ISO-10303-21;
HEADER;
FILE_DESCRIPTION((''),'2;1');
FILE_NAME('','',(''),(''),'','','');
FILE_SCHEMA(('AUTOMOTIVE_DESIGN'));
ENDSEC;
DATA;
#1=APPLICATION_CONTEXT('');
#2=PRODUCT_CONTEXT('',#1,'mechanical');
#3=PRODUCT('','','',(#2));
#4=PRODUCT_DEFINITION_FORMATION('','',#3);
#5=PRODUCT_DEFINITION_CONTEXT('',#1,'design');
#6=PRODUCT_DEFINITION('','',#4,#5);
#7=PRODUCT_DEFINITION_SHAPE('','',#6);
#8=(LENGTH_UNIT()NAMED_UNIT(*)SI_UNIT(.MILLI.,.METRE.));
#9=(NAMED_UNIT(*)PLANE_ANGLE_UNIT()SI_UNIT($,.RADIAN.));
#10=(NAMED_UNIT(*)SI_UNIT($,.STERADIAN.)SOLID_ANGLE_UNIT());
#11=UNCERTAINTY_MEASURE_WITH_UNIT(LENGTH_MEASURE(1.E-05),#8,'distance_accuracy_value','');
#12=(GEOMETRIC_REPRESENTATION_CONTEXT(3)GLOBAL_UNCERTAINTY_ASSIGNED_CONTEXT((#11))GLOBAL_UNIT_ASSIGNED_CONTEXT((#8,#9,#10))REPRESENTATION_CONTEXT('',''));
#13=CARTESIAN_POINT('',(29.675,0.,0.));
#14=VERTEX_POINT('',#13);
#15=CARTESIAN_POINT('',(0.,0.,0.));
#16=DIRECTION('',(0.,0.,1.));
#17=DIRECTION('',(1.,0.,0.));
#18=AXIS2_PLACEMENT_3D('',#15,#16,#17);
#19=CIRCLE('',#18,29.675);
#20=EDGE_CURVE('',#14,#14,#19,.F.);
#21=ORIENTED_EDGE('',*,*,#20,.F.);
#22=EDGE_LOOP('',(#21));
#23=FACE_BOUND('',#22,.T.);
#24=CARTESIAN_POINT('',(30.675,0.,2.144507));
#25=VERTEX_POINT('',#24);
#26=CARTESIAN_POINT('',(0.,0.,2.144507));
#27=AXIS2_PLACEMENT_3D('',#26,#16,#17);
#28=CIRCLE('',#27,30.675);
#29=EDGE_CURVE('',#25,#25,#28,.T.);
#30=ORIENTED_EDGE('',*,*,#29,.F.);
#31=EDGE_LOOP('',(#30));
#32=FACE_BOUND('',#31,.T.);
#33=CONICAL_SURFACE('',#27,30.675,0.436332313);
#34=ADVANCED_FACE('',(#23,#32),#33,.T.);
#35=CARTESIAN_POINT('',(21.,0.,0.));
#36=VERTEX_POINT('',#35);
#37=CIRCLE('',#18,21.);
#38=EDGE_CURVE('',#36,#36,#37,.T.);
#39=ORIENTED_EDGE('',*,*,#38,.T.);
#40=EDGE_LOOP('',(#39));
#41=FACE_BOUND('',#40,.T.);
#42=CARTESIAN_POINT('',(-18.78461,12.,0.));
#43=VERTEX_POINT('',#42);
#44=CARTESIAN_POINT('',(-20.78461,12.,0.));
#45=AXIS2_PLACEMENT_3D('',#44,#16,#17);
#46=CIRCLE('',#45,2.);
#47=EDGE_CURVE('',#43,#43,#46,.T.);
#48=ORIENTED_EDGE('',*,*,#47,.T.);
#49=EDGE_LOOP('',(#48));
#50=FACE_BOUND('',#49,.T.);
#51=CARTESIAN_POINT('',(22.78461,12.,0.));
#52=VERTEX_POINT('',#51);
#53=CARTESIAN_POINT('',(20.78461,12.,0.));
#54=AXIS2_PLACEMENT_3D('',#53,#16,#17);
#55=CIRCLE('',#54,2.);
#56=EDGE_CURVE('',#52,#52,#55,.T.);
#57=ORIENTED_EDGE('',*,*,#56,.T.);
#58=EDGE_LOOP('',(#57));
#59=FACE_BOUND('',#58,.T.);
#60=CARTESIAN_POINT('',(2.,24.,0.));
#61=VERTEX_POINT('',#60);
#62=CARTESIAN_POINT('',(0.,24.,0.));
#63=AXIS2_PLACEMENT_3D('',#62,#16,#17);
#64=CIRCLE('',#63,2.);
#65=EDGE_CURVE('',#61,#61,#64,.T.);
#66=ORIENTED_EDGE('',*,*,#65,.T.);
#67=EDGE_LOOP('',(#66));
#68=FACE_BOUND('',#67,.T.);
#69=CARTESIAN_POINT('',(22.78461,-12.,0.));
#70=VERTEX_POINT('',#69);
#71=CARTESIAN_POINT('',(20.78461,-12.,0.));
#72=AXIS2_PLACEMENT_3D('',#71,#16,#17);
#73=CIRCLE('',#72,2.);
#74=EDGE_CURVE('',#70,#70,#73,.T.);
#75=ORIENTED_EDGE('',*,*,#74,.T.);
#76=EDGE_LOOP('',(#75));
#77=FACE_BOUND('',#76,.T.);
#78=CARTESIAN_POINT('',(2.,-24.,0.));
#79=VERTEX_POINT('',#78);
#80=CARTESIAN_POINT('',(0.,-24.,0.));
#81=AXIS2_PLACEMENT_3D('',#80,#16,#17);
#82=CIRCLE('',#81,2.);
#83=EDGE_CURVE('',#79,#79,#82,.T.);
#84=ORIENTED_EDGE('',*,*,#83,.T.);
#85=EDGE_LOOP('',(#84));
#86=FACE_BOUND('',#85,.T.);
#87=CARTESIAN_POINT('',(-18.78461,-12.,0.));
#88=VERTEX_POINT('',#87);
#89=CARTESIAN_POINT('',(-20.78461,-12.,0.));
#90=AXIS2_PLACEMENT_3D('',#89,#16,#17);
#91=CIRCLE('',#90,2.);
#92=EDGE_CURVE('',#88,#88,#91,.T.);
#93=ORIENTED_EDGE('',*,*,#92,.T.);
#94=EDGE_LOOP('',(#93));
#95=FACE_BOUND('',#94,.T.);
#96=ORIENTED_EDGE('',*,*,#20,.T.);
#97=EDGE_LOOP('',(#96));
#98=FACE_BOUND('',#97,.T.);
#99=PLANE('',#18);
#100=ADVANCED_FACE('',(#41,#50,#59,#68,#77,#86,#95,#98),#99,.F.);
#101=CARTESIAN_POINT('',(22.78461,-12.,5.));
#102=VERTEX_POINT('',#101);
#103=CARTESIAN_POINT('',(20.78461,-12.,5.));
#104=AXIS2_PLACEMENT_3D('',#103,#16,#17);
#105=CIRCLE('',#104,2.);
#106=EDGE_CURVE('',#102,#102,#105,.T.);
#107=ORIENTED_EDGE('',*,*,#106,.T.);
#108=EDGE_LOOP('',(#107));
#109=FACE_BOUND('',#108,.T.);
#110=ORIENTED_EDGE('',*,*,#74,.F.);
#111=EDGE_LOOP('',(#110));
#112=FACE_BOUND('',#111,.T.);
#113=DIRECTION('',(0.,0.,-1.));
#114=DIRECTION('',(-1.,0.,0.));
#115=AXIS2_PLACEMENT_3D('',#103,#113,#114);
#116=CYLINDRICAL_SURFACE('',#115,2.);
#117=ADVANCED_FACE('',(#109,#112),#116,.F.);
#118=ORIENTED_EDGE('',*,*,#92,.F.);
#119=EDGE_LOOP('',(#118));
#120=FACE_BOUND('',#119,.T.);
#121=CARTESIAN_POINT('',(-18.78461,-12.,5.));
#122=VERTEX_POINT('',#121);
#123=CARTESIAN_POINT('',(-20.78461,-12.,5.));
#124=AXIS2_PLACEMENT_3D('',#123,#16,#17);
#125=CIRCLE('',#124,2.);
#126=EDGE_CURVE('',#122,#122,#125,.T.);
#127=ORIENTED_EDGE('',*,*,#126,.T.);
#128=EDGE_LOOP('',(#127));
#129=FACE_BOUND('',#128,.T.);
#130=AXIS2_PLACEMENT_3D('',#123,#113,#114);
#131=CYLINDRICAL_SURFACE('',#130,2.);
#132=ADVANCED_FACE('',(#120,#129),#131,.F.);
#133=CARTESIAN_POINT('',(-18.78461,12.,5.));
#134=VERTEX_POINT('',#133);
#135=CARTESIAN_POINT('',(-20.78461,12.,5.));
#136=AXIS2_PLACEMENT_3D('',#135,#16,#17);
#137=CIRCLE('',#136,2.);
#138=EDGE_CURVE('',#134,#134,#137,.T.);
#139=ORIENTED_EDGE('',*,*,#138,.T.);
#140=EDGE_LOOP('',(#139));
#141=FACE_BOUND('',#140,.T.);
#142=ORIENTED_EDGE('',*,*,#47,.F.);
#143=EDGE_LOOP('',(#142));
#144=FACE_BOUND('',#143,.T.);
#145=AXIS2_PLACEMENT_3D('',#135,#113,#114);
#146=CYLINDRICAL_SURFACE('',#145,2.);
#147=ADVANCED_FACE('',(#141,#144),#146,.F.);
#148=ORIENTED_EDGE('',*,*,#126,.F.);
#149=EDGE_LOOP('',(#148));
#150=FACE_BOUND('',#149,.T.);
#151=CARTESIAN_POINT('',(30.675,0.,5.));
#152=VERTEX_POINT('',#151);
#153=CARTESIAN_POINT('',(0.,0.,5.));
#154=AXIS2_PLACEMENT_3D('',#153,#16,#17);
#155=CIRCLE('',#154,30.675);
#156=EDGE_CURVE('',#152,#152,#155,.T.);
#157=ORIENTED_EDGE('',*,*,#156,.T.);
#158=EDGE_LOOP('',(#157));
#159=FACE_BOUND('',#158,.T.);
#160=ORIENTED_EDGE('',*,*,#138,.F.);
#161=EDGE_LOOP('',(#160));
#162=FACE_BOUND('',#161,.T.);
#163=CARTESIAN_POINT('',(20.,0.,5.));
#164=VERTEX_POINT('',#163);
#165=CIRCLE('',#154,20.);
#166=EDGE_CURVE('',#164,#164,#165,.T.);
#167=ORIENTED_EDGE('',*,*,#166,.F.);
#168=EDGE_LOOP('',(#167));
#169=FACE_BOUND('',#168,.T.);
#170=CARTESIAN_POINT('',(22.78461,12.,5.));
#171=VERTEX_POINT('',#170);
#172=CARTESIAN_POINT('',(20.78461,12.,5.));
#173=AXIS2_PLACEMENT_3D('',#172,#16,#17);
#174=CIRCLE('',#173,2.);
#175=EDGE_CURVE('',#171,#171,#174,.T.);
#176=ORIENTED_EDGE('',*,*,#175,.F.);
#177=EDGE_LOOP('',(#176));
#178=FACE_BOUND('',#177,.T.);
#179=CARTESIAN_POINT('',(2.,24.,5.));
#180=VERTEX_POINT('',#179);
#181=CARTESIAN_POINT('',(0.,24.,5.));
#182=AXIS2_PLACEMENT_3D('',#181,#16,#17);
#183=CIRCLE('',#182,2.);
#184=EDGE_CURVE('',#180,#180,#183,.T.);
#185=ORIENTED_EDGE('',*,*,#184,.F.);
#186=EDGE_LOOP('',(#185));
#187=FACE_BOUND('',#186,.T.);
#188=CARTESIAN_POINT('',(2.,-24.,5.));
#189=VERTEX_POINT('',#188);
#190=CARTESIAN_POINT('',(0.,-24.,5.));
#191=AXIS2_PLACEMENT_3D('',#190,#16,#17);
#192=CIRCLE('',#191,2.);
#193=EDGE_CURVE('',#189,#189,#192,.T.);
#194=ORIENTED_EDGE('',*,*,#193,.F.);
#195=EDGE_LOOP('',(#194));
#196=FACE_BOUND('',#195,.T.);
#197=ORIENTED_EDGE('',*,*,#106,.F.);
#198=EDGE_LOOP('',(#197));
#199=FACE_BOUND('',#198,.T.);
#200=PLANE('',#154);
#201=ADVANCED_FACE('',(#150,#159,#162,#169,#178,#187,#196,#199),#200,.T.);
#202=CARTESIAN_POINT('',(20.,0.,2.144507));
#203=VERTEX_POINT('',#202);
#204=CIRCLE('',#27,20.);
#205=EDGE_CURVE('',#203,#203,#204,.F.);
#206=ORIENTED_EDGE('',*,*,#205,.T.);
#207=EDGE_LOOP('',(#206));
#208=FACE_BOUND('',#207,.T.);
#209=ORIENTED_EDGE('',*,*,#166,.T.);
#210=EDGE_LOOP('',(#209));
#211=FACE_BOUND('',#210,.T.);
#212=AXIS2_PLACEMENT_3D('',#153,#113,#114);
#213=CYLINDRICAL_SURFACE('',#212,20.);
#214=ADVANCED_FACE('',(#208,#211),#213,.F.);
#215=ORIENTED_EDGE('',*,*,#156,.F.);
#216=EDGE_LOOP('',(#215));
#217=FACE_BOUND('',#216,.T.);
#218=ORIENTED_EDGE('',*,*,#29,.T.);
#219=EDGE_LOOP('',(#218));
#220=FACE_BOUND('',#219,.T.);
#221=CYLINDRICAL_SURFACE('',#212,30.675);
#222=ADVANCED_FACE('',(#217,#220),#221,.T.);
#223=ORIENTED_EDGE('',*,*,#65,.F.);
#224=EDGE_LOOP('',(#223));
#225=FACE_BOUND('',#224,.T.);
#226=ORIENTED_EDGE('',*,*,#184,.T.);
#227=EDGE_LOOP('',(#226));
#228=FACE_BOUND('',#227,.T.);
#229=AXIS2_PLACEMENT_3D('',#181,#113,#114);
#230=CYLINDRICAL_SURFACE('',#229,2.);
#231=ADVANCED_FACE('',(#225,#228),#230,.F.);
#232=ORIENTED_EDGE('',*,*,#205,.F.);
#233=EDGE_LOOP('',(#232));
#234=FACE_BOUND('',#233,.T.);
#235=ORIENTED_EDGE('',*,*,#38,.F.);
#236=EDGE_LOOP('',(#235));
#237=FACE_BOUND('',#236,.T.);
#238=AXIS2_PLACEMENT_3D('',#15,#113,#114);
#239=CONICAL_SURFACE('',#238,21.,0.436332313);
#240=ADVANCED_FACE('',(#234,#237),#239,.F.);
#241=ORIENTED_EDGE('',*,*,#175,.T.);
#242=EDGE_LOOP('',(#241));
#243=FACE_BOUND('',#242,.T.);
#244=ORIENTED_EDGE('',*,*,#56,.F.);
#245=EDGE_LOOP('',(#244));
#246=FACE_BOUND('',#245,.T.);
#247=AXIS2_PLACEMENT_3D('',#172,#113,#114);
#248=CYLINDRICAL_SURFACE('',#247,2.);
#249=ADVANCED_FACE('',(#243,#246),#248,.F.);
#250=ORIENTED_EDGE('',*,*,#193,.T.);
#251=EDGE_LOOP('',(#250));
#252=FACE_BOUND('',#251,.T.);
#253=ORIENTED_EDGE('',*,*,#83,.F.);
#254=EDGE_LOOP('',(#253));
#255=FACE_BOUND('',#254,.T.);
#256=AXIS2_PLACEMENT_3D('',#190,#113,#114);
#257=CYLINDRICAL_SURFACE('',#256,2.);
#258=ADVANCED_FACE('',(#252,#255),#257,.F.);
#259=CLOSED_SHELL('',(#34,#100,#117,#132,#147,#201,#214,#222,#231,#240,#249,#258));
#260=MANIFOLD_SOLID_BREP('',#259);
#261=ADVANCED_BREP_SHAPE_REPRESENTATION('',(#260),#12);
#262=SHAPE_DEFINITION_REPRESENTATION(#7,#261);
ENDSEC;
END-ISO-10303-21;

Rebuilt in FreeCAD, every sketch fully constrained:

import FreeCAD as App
import Part
import Sketcher

V = App.Vector


def edges_at(feature, points):
    """Names of the edges that pass closest to the given points."""
    edges = feature.Shape.Edges
    near = lambda p: min(range(len(edges)), key=lambda i: edges[i].distToShape(Part.Vertex(*p))[0])
    return sorted({f"Edge{near(p) + 1}" for p in points})

doc = App.newDocument("Part")
body = doc.addObject("PartDesign::Body", "Body")

# Sketch on XY plane
sketch1 = body.newObject("Sketcher::SketchObject", "Sketch")
sketch1.AttachmentSupport = (doc.getObject("XY_Plane"), [""])
sketch1.MapMode = "FlatFace"
sketch1.addGeometry(Part.Circle(V(0, 0, 0), V(0, 0, 1), 30.675), False)
sketch1.addGeometry(Part.Circle(V(-20.78461, -12, 0), V(0, 0, 1), 2), False)
sketch1.addGeometry(Part.Circle(V(0, -24, 0), V(0, 0, 1), 2), False)
sketch1.addGeometry(Part.Circle(V(20.78461, -12, 0), V(0, 0, 1), 2), False)
sketch1.addGeometry(Part.Circle(V(-20.78461, 12, 0), V(0, 0, 1), 2), False)
sketch1.addGeometry(Part.Circle(V(0, 0, 0), V(0, 0, 1), 20), False)
sketch1.addGeometry(Part.Circle(V(20.78461, 12, 0), V(0, 0, 1), 2), False)
sketch1.addGeometry(Part.Circle(V(0, 24, 0), V(0, 0, 1), 2), False)
sketch1.addConstraint(Sketcher.Constraint("Coincident", 0, 3, -1, 1))
sketch1.addConstraint(Sketcher.Constraint("Coincident", 5, 3, -1, 1))
sketch1.addConstraint(Sketcher.Constraint("Equal", 1, 2))
sketch1.addConstraint(Sketcher.Constraint("Equal", 2, 3))
sketch1.addConstraint(Sketcher.Constraint("Equal", 3, 4))
sketch1.addConstraint(Sketcher.Constraint("Equal", 4, 6))
sketch1.addConstraint(Sketcher.Constraint("Equal", 6, 7))
sketch1.addConstraint(Sketcher.Constraint("Symmetric", 3, 3, 4, 3, -1, 1))
sketch1.addConstraint(Sketcher.Constraint("Symmetric", 1, 3, 6, 3, -1, 1))
sketch1.addConstraint(Sketcher.Constraint("Symmetric", 2, 3, 7, 3, -1, 1))
sketch1.addConstraint(Sketcher.Constraint("Symmetric", 1, 3, 3, 3, -2))
sketch1.addConstraint(Sketcher.Constraint("PointOnObject", 2, 3, -2))
sketch1.addConstraint(Sketcher.Constraint("Diameter", 1, 4.0))
sketch1.addConstraint(Sketcher.Constraint("Diameter", 5, 40.0))
sketch1.addConstraint(Sketcher.Constraint("Diameter", 0, 61.35))
sketch1.addConstraint(Sketcher.Constraint("DistanceY", 1, 3, -1, 1, 12.0))
sketch1.addConstraint(Sketcher.Constraint("DistanceY", 2, 3, -1, 1, 24.0))
sketch1.addConstraint(Sketcher.Constraint("DistanceX", 1, 3, -1, 1, 20.78461))
pad1 = body.newObject("PartDesign::Pad", "Pad")
pad1.Profile = sketch1
pad1.Length = 5
doc.recompute()

chamfer = body.newObject("PartDesign::Chamfer", "Chamfer")
chamfer.Base = (pad1, edges_at(pad1, [(-30.675, 0, 0), (-20, 0, 0)]))
chamfer.ChamferType = "Two distances"
chamfer.Size = 1
chamfer.Size2 = 2.144507
chamfer.FlipDirection = True

doc.recompute()
